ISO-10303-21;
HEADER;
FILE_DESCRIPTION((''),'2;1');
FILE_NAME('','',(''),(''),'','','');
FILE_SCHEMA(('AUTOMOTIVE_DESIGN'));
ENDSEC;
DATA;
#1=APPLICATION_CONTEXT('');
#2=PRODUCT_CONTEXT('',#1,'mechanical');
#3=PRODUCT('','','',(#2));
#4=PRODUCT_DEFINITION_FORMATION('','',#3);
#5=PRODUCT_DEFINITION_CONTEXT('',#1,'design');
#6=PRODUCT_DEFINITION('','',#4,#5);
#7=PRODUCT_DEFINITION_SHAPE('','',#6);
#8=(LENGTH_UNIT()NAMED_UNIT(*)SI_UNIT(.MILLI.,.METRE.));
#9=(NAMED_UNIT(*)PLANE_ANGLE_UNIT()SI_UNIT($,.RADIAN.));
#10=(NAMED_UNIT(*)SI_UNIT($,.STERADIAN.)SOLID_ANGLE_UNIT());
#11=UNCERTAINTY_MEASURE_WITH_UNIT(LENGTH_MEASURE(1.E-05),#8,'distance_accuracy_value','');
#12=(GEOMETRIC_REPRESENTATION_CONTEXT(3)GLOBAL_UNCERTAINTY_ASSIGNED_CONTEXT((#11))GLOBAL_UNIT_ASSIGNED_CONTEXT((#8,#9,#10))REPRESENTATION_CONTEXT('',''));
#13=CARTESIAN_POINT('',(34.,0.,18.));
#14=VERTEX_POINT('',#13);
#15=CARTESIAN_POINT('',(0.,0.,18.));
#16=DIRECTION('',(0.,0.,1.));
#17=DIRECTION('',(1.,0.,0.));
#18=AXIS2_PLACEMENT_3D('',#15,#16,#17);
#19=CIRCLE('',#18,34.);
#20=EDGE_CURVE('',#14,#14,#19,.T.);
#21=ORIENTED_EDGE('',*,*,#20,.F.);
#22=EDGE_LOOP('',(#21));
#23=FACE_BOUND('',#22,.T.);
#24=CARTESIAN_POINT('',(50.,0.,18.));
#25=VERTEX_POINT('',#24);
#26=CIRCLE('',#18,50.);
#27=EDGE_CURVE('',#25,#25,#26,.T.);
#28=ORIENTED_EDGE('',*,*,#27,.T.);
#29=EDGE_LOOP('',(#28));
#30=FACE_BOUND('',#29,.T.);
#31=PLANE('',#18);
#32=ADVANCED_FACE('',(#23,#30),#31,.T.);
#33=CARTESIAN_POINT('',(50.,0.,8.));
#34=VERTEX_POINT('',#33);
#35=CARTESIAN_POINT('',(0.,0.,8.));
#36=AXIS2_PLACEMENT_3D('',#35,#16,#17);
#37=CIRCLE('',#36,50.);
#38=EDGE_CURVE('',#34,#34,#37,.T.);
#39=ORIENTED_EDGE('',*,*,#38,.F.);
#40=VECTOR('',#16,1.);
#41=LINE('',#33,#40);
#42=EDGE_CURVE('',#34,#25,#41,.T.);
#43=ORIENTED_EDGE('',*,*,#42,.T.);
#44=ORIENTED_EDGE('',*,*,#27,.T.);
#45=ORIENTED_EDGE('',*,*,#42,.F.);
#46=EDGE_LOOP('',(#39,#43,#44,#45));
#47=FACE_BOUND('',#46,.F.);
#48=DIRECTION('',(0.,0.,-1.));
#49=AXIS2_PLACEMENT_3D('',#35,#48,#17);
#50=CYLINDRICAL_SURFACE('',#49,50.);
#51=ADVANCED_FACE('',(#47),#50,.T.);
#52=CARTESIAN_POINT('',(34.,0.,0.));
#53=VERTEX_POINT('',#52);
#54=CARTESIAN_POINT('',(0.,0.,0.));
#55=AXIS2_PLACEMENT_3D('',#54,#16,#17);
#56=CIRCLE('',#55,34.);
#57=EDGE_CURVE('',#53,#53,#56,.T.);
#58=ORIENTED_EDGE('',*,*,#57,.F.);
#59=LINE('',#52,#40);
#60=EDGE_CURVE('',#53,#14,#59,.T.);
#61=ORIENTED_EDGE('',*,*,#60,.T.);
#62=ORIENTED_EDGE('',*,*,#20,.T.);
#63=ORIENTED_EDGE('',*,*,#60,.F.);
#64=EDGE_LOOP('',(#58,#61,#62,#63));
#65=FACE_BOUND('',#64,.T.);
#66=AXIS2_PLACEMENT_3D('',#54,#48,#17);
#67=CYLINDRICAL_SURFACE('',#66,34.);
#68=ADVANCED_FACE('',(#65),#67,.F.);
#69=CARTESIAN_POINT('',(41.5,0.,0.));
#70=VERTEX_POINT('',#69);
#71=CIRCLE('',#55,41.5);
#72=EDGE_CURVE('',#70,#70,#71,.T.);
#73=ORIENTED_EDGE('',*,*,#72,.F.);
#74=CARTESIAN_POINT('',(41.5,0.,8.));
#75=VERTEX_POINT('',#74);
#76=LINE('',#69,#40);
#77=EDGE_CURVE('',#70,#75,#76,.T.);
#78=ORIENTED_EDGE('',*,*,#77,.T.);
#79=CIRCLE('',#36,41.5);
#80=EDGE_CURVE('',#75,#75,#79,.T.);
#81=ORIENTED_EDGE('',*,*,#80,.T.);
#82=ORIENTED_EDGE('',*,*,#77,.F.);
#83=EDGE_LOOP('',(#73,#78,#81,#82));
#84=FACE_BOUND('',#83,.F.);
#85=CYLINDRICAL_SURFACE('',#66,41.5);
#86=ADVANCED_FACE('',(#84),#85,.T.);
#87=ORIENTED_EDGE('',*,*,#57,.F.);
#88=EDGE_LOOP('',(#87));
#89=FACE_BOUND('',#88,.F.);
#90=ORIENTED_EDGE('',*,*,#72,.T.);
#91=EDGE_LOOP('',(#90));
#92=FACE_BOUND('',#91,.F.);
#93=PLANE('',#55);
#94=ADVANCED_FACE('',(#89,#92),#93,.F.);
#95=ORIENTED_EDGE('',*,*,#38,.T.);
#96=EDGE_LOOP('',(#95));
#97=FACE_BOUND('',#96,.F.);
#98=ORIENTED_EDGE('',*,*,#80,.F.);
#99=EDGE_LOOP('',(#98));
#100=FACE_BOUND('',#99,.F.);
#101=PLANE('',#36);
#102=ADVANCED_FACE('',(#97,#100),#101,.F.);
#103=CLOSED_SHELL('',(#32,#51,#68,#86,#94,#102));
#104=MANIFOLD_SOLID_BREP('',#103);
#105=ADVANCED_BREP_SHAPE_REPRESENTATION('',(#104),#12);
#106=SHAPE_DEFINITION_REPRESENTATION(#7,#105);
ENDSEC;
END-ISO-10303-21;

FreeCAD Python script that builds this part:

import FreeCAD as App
import Part
import Sketcher
from FreeCAD import Vector

doc = App.newDocument("Part")
body = doc.addObject("PartDesign::Body", "Body")

# Sketch on XY plane
sketch1 = doc.addObject("Sketcher::SketchObject", "Sketch")
body.addObject(sketch1)
sketch1.AttachmentSupport = (doc.XY_Plane, [""])
sketch1.MapMode = "FlatFace"
sketch1.addGeometry(Part.Circle(Vector(0, 0, 0), Vector(0, 0, 1), 42), False)
sketch1.addGeometry(Part.Circle(Vector(0, 0, 0), Vector(0, 0, 1), 34), False)
sketch1.addConstraint(Sketcher.Constraint("Coincident", 0, 3, -1, 1))
sketch1.addConstraint(Sketcher.Constraint("Coincident", 1, 3, -1, 1))
sketch1.addConstraint(Sketcher.Constraint("Diameter", 0, 83.0))
sketch1.addConstraint(Sketcher.Constraint("Diameter", 1, 68.0))
pad1 = doc.addObject("PartDesign::Pad", "Pad")
body.addObject(pad1)
pad1.Profile = sketch1
pad1.Length = 8

# Sketch on XY plane
sketch2 = doc.addObject("Sketcher::SketchObject", "Sketch001")
body.addObject(sketch2)
sketch2.AttachmentSupport = (doc.XY_Plane, [""])
sketch2.MapMode = "FlatFace"
sketch2.AttachmentOffset = App.Placement(Vector(0, 0, 8), App.Rotation())
sketch2.addGeometry(Part.Circle(Vector(0, 0, 0), Vector(0, 0, 1), 50), False)
sketch2.addGeometry(Part.Circle(Vector(0, 0, 0), Vector(0, 0, 1), 34), False)
sketch2.addConstraint(Sketcher.Constraint("Coincident", 0, 3, -1, 1))
sketch2.addConstraint(Sketcher.Constraint("Coincident", 1, 3, -1, 1))
sketch2.addConstraint(Sketcher.Constraint("Diameter", 0, 100.0))
sketch2.addConstraint(Sketcher.Constraint("Diameter", 1, 68.0))
pad2 = doc.addObject("PartDesign::Pad", "Pad001")
body.addObject(pad2)
pad2.Profile = sketch2
pad2.Length = 10

doc.recompute()
